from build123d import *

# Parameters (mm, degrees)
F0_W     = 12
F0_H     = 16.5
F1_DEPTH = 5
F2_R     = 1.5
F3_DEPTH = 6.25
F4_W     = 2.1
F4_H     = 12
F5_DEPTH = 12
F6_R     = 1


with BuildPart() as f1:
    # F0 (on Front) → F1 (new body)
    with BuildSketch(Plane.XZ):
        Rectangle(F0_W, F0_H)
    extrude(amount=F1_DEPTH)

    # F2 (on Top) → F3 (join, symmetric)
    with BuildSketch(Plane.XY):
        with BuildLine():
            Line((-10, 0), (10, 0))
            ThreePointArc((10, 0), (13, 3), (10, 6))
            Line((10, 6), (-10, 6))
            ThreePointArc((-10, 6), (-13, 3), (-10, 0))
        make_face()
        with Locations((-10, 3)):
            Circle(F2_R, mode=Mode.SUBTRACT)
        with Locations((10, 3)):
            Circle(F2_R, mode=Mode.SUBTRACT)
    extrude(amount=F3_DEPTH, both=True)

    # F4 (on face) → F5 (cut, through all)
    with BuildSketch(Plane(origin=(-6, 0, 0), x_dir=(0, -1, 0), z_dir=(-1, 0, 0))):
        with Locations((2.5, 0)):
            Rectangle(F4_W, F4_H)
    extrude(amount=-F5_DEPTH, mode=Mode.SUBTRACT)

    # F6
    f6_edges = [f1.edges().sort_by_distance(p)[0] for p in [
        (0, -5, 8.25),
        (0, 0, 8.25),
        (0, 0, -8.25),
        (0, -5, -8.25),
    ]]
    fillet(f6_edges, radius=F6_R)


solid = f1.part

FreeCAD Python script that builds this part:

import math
import FreeCAD as App
import Part
import Sketcher
from FreeCAD import Vector


def edges_at(feature, points):
    """Names of the edges that pass closest to the given points."""
    edges = feature.Shape.Edges
    near = lambda p: min(range(len(edges)), key=lambda i: edges[i].distToShape(Part.Vertex(*p))[0])
    return sorted({f"Edge{near(p) + 1}" for p in points})


def add_polygon(sketch, points):
    """Adds a closed chain of lines whose ends are joined by coincident constraints."""
    first, n = sketch.GeometryCount, len(points)
    for a, b in zip(points, points[1:] + points[:1]):
        sketch.addGeometry(Part.LineSegment(App.Vector(*a, 0), App.Vector(*b, 0)), False)
    for i in range(n):
        sketch.addConstraint(Sketcher.Constraint("Coincident", first + i, 2, first + (i + 1) % n, 1))

doc = App.newDocument("Part")
body = doc.addObject("PartDesign::Body", "Body")

sketch1 = body.newObject("Sketcher::SketchObject", "Sketch")
sketch1.AttachmentSupport = (doc.getObject("XZ_Plane"), [""])
sketch1.MapMode = "FlatFace"
add_polygon(sketch1, [(-6, 8.25), (-6, -8.25), (6, -8.25), (6, 8.25)])
sketch1.addConstraint([
    Sketcher.Constraint("Vertical", 0),
    Sketcher.Constraint("Horizontal", 1),
    Sketcher.Constraint("Vertical", 2),
    Sketcher.Constraint("Horizontal", 3),
    Sketcher.Constraint("Symmetric", 0, 2, 2, 2, -1, 1),
    Sketcher.Constraint("DistanceX", 1, 1, 1, 2, 12.0),
    Sketcher.Constraint("DistanceY", 0, 2, 0, 1, 16.5),
])
pad1 = body.newObject("PartDesign::Pad", "Pad")
pad1.Profile = sketch1
pad1.Length = 5

sketch2 = body.newObject("Sketcher::SketchObject", "Sketch001")
sketch2.AttachmentSupport = (doc.getObject("XY_Plane"), [""])
sketch2.MapMode = "FlatFace"
sketch2.addGeometry([
    Part.LineSegment(Vector(-10, 0, 0), Vector(10, 0, 0)),
    Part.ArcOfCircle(Part.Circle(Vector(10, 3, 0), Vector(0, 0, 1), 3), math.radians(-90), math.radians(90)),
    Part.LineSegment(Vector(10, 6, 0), Vector(-10, 6, 0)),
    Part.ArcOfCircle(Part.Circle(Vector(-10, 3, 0), Vector(0, 0, 1), 3), math.radians(90), math.radians(270)),
    Part.Circle(Vector(-10, 3, 0), Vector(0, 0, 1), 1.5),
    Part.Circle(Vector(10, 3, 0), Vector(0, 0, 1), 1.5),
], False)
sketch2.addConstraint([
    Sketcher.Constraint("Tangent", 0, 2, 1, 1),
    Sketcher.Constraint("Tangent", 1, 2, 2, 1),
    Sketcher.Constraint("Tangent", 2, 2, 3, 1),
    Sketcher.Constraint("Tangent", 3, 2, 0, 1),
    Sketcher.Constraint("Horizontal", 0),
    Sketcher.Constraint("Horizontal", 2),
    Sketcher.Constraint("Coincident", 4, 3, 3, 3),
    Sketcher.Constraint("Coincident", 5, 3, 1, 3),
    Sketcher.Constraint("Equal", 4, 5),
    Sketcher.Constraint("Symmetric", 0, 2, 3, 2, -1, 1),
    Sketcher.Constraint("Diameter", 4, 3.0),
    Sketcher.Constraint("Radius", 1, 3.0),
    Sketcher.Constraint("DistanceX", 0, 1, 0, 2, 20.0),
])
pad2 = body.newObject("PartDesign::Pad", "Pad001")
pad2.Profile = sketch2
pad2.Length = 12.5
pad2.Midplane = True

sketch3 = body.newObject("Sketcher::SketchObject", "Sketch002")
sketch3.AttachmentSupport = (doc.getObject("YZ_Plane"), [""])
sketch3.MapMode = "FlatFace"
sketch3.AttachmentOffset = App.Placement(Vector(0, 0, -6), App.Rotation())
add_polygon(sketch3, [(-1.45, 6), (-1.45, -6), (-3.55, -6), (-3.55, 6)])
sketch3.addConstraint([
    Sketcher.Constraint("Vertical", 0),
    Sketcher.Constraint("Horizontal", 1),
    Sketcher.Constraint("Vertical", 2),
    Sketcher.Constraint("Horizontal", 3),
    Sketcher.Constraint("DistanceY", 0, 2, 0, 1, 12.0),
    Sketcher.Constraint("DistanceX", 1, 2, 1, 1, 2.1),
    Sketcher.Constraint("DistanceY", 0, 2, -1, 1, 6.0),
    Sketcher.Constraint("DistanceX", 0, 2, -1, 1, 1.45),
])
pocket1 = body.newObject("PartDesign::Pocket", "Pocket")
pocket1.Profile = sketch3
pocket1.Type = "ThroughAll"
pocket1.Reversed = True
doc.recompute()

fillet = body.newObject("PartDesign::Fillet", "Fillet")
fillet.Base = (pocket1, edges_at(pocket1, [
    (0, -5, 8.25),
    (0, 0, 8.25),
    (0, 0, -8.25),
    (0, -5, -8.25),
]))
fillet.Radius = 1

doc.recompute()
